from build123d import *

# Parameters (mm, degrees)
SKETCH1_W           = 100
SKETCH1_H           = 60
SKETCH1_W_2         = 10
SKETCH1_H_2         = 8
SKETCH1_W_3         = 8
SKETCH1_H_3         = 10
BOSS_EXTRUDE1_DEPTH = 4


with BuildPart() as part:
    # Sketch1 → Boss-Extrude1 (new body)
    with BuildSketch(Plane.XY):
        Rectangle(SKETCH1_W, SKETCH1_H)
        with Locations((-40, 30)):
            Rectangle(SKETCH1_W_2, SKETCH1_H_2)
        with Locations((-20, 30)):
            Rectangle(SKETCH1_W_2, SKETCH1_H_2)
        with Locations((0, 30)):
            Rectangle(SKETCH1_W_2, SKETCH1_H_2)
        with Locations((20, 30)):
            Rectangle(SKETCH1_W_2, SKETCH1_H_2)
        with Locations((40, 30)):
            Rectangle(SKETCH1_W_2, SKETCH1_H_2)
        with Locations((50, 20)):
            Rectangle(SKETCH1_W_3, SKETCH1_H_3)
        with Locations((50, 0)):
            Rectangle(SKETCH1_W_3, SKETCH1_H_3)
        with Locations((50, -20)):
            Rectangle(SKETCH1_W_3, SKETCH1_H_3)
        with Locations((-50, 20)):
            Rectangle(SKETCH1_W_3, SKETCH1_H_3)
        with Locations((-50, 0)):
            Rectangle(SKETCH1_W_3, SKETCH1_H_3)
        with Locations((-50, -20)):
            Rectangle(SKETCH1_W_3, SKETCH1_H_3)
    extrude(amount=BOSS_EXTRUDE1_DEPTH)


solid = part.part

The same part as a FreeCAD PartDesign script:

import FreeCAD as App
import Part
import Sketcher

V = App.Vector
Q = App.Units.Quantity


def add_polygon(sketch, points):
    """Adds a closed chain of lines whose ends are joined by coincident constraints."""
    first, n = sketch.GeometryCount, len(points)
    for a, b in zip(points, points[1:] + points[:1]):
        sketch.addGeometry(Part.LineSegment(App.Vector(*a, 0), App.Vector(*b, 0)), False)
    for i in range(n):
        sketch.addConstraint(Sketcher.Constraint("Coincident", first + i, 2, first + (i + 1) % n, 1))

doc = App.newDocument("Part")
body = doc.addObject("PartDesign::Body", "Body")

sketch1 = body.newObject("Sketcher::SketchObject", "Sketch")
sketch1.AttachmentSupport = (doc.getObject("XY_Plane"), [""])
sketch1.MapMode = "FlatFace"
add_polygon(sketch1, [(-50, -25), (-50, -30), (50, -30), (50, -25), (54, -25), (54, -15), (50, -15), (50, -5), (54, -5), (54, 5), (50, 5), (50, 15), (54, 15), (54, 25), (50, 25), (50, 30), (45, 30), (45, 34), (35, 34), (35, 30), (25, 30), (25, 34), (15, 34), (15, 30), (5, 30), (5, 34), (-5, 34), (-5, 30), (-15, 30), (-15, 34), (-25, 34), (-25, 30), (-35, 30), (-35, 34), (-45, 34), (-45, 30), (-50, 30), (-50, 25), (-54, 25), (-54, 15), (-50, 15), (-50, 5), (-54, 5), (-54, -5), (-50, -5), (-50, -15), (-54, -15), (-54, -25)])
sketch1.addConstraint(Sketcher.Constraint("Vertical", 0))
sketch1.addConstraint(Sketcher.Constraint("Horizontal", 1))
sketch1.addConstraint(Sketcher.Constraint("Vertical", 2))
sketch1.addConstraint(Sketcher.Constraint("Horizontal", 3))
sketch1.addConstraint(Sketcher.Constraint("Vertical", 4))
sketch1.addConstraint(Sketcher.Constraint("Horizontal", 5))
sketch1.addConstraint(Sketcher.Constraint("Vertical", 6))
sketch1.addConstraint(Sketcher.Constraint("Horizontal", 7))
sketch1.addConstraint(Sketcher.Constraint("Vertical", 8))
sketch1.addConstraint(Sketcher.Constraint("Horizontal", 9))
sketch1.addConstraint(Sketcher.Constraint("Vertical", 10))
sketch1.addConstraint(Sketcher.Constraint("Horizontal", 11))
sketch1.addConstraint(Sketcher.Constraint("Vertical", 12))
sketch1.addConstraint(Sketcher.Constraint("Horizontal", 13))
sketch1.addConstraint(Sketcher.Constraint("Vertical", 14))
sketch1.addConstraint(Sketcher.Constraint("Horizontal", 15))
sketch1.addConstraint(Sketcher.Constraint("Vertical", 16))
sketch1.addConstraint(Sketcher.Constraint("Horizontal", 17))
sketch1.addConstraint(Sketcher.Constraint("Vertical", 18))
sketch1.addConstraint(Sketcher.Constraint("Horizontal", 19))
sketch1.addConstraint(Sketcher.Constraint("Vertical", 20))
sketch1.addConstraint(Sketcher.Constraint("Horizontal", 21))
sketch1.addConstraint(Sketcher.Constraint("Vertical", 22))
sketch1.addConstraint(Sketcher.Constraint("Horizontal", 23))
sketch1.addConstraint(Sketcher.Constraint("Vertical", 24))
sketch1.addConstraint(Sketcher.Constraint("Horizontal", 25))
sketch1.addConstraint(Sketcher.Constraint("Vertical", 26))
sketch1.addConstraint(Sketcher.Constraint("Horizontal", 27))
sketch1.addConstraint(Sketcher.Constraint("Vertical", 28))
sketch1.addConstraint(Sketcher.Constraint("Horizontal", 29))
sketch1.addConstraint(Sketcher.Constraint("Vertical", 30))
sketch1.addConstraint(Sketcher.Constraint("Horizontal", 31))
sketch1.addConstraint(Sketcher.Constraint("Vertical", 32))
sketch1.addConstraint(Sketcher.Constraint("Horizontal", 33))
sketch1.addConstraint(Sketcher.Constraint("Vertical", 34))
sketch1.addConstraint(Sketcher.Constraint("Horizontal", 35))
sketch1.addConstraint(Sketcher.Constraint("Vertical", 36))
sketch1.addConstraint(Sketcher.Constraint("Horizontal", 37))
sketch1.addConstraint(Sketcher.Constraint("Vertical", 38))
sketch1.addConstraint(Sketcher.Constraint("Horizontal", 39))
sketch1.addConstraint(Sketcher.Constraint("Vertical", 40))
sketch1.addConstraint(Sketcher.Constraint("Horizontal", 41))
sketch1.addConstraint(Sketcher.Constraint("Vertical", 42))
sketch1.addConstraint(Sketcher.Constraint("Horizontal", 43))
sketch1.addConstraint(Sketcher.Constraint("Vertical", 44))
sketch1.addConstraint(Sketcher.Constraint("Horizontal", 45))
sketch1.addConstraint(Sketcher.Constraint("Vertical", 46))
sketch1.addConstraint(Sketcher.Constraint("Horizontal", 47))
sketch1.addConstraint(Sketcher.Constraint("Symmetric", 0, 2, 14, 2, -1, 1))
sketch1.addConstraint(Sketcher.Constraint("Symmetric", 1, 2, 35, 2, -1, 1))
sketch1.addConstraint(Sketcher.Constraint("Symmetric", 3, 2, 37, 2, -1, 1))
sketch1.addConstraint(Sketcher.Constraint("Symmetric", 5, 2, 39, 2, -1, 1))
sketch1.addConstraint(Sketcher.Constraint("Symmetric", 7, 2, 41, 2, -1, 1))
sketch1.addConstraint(Sketcher.Constraint("Symmetric", 9, 2, 43, 2, -1, 1))
sketch1.addConstraint(Sketcher.Constraint("Symmetric", 11, 2, 45, 2, -1, 1))
sketch1.addConstraint(Sketcher.Constraint("Symmetric", 23, 2, 26, 2, -2))
sketch1.addConstraint(Sketcher.Constraint("Symmetric", 21, 2, 28, 2, -2))
sketch1.addConstraint(Sketcher.Constraint("Symmetric", 19, 2, 30, 2, -2))
sketch1.addConstraint(Sketcher.Constraint("Symmetric", 17, 2, 32, 2, -2))
sketch1.addConstraint(Sketcher.Constraint("Symmetric", 13, 2, 36, 2, -2))
sketch1.addConstraint(Sketcher.Constraint("Symmetric", 11, 2, 38, 2, -2))
sketch1.addConstraint(Sketcher.Constraint("Symmetric", 9, 2, 40, 2, -2))
sketch1.addConstraint(Sketcher.Constraint("Horizontal", 15, 2, 18, 2))
sketch1.addConstraint(Sketcher.Constraint("Horizontal", 17, 2, 20, 2))
sketch1.addConstraint(Sketcher.Constraint("Horizontal", 19, 2, 22, 2))
sketch1.addConstraint(Sketcher.Constraint("Horizontal", 21, 2, 24, 2))
sketch1.addConstraint(Sketcher.Constraint("Horizontal", 3, 2, 46, 2))
sketch1.addConstraint(Sketcher.Constraint("Vertical", 2, 2, 5, 2))
sketch1.addConstraint(Sketcher.Constraint("Vertical", 4, 2, 7, 2))
sketch1.addConstraint(Sketcher.Constraint("Equal", 17, 19))
sketch1.addConstraint(Sketcher.Constraint("Equal", 19, 21))
sketch1.addConstraint(Sketcher.Constraint("Equal", 21, 23))
sketch1.addConstraint(Sketcher.Constraint("Equal", 23, 25))
sketch1.addConstraint(Sketcher.Constraint("Equal", 31, 33))
sketch1.addConstraint(Sketcher.Constraint("Equal", 35, 0))
sketch1.addConstraint(Sketcher.Constraint("Equal", 33, 4))
sketch1.addConstraint(Sketcher.Constraint("Equal", 4, 6))
sketch1.addConstraint(Sketcher.Constraint("Equal", 6, 8))
sketch1.addConstraint(Sketcher.Constraint("Equal", 47, 16))
sketch1.addConstraint(Sketcher.Constraint("DistanceX", 1, 1, 1, 2, Q("100 mm")))
sketch1.addConstraint(Sketcher.Constraint("DistanceX", 3, 1, 3, 2, Q("4 mm")))
sketch1.addConstraint(Sketcher.Constraint("DistanceX", 15, 2, 15, 1, Q("5 mm")))
pad1 = body.newObject("PartDesign::Pad", "Pad")
pad1.Profile = sketch1
pad1.Length = 4

doc.recompute()
